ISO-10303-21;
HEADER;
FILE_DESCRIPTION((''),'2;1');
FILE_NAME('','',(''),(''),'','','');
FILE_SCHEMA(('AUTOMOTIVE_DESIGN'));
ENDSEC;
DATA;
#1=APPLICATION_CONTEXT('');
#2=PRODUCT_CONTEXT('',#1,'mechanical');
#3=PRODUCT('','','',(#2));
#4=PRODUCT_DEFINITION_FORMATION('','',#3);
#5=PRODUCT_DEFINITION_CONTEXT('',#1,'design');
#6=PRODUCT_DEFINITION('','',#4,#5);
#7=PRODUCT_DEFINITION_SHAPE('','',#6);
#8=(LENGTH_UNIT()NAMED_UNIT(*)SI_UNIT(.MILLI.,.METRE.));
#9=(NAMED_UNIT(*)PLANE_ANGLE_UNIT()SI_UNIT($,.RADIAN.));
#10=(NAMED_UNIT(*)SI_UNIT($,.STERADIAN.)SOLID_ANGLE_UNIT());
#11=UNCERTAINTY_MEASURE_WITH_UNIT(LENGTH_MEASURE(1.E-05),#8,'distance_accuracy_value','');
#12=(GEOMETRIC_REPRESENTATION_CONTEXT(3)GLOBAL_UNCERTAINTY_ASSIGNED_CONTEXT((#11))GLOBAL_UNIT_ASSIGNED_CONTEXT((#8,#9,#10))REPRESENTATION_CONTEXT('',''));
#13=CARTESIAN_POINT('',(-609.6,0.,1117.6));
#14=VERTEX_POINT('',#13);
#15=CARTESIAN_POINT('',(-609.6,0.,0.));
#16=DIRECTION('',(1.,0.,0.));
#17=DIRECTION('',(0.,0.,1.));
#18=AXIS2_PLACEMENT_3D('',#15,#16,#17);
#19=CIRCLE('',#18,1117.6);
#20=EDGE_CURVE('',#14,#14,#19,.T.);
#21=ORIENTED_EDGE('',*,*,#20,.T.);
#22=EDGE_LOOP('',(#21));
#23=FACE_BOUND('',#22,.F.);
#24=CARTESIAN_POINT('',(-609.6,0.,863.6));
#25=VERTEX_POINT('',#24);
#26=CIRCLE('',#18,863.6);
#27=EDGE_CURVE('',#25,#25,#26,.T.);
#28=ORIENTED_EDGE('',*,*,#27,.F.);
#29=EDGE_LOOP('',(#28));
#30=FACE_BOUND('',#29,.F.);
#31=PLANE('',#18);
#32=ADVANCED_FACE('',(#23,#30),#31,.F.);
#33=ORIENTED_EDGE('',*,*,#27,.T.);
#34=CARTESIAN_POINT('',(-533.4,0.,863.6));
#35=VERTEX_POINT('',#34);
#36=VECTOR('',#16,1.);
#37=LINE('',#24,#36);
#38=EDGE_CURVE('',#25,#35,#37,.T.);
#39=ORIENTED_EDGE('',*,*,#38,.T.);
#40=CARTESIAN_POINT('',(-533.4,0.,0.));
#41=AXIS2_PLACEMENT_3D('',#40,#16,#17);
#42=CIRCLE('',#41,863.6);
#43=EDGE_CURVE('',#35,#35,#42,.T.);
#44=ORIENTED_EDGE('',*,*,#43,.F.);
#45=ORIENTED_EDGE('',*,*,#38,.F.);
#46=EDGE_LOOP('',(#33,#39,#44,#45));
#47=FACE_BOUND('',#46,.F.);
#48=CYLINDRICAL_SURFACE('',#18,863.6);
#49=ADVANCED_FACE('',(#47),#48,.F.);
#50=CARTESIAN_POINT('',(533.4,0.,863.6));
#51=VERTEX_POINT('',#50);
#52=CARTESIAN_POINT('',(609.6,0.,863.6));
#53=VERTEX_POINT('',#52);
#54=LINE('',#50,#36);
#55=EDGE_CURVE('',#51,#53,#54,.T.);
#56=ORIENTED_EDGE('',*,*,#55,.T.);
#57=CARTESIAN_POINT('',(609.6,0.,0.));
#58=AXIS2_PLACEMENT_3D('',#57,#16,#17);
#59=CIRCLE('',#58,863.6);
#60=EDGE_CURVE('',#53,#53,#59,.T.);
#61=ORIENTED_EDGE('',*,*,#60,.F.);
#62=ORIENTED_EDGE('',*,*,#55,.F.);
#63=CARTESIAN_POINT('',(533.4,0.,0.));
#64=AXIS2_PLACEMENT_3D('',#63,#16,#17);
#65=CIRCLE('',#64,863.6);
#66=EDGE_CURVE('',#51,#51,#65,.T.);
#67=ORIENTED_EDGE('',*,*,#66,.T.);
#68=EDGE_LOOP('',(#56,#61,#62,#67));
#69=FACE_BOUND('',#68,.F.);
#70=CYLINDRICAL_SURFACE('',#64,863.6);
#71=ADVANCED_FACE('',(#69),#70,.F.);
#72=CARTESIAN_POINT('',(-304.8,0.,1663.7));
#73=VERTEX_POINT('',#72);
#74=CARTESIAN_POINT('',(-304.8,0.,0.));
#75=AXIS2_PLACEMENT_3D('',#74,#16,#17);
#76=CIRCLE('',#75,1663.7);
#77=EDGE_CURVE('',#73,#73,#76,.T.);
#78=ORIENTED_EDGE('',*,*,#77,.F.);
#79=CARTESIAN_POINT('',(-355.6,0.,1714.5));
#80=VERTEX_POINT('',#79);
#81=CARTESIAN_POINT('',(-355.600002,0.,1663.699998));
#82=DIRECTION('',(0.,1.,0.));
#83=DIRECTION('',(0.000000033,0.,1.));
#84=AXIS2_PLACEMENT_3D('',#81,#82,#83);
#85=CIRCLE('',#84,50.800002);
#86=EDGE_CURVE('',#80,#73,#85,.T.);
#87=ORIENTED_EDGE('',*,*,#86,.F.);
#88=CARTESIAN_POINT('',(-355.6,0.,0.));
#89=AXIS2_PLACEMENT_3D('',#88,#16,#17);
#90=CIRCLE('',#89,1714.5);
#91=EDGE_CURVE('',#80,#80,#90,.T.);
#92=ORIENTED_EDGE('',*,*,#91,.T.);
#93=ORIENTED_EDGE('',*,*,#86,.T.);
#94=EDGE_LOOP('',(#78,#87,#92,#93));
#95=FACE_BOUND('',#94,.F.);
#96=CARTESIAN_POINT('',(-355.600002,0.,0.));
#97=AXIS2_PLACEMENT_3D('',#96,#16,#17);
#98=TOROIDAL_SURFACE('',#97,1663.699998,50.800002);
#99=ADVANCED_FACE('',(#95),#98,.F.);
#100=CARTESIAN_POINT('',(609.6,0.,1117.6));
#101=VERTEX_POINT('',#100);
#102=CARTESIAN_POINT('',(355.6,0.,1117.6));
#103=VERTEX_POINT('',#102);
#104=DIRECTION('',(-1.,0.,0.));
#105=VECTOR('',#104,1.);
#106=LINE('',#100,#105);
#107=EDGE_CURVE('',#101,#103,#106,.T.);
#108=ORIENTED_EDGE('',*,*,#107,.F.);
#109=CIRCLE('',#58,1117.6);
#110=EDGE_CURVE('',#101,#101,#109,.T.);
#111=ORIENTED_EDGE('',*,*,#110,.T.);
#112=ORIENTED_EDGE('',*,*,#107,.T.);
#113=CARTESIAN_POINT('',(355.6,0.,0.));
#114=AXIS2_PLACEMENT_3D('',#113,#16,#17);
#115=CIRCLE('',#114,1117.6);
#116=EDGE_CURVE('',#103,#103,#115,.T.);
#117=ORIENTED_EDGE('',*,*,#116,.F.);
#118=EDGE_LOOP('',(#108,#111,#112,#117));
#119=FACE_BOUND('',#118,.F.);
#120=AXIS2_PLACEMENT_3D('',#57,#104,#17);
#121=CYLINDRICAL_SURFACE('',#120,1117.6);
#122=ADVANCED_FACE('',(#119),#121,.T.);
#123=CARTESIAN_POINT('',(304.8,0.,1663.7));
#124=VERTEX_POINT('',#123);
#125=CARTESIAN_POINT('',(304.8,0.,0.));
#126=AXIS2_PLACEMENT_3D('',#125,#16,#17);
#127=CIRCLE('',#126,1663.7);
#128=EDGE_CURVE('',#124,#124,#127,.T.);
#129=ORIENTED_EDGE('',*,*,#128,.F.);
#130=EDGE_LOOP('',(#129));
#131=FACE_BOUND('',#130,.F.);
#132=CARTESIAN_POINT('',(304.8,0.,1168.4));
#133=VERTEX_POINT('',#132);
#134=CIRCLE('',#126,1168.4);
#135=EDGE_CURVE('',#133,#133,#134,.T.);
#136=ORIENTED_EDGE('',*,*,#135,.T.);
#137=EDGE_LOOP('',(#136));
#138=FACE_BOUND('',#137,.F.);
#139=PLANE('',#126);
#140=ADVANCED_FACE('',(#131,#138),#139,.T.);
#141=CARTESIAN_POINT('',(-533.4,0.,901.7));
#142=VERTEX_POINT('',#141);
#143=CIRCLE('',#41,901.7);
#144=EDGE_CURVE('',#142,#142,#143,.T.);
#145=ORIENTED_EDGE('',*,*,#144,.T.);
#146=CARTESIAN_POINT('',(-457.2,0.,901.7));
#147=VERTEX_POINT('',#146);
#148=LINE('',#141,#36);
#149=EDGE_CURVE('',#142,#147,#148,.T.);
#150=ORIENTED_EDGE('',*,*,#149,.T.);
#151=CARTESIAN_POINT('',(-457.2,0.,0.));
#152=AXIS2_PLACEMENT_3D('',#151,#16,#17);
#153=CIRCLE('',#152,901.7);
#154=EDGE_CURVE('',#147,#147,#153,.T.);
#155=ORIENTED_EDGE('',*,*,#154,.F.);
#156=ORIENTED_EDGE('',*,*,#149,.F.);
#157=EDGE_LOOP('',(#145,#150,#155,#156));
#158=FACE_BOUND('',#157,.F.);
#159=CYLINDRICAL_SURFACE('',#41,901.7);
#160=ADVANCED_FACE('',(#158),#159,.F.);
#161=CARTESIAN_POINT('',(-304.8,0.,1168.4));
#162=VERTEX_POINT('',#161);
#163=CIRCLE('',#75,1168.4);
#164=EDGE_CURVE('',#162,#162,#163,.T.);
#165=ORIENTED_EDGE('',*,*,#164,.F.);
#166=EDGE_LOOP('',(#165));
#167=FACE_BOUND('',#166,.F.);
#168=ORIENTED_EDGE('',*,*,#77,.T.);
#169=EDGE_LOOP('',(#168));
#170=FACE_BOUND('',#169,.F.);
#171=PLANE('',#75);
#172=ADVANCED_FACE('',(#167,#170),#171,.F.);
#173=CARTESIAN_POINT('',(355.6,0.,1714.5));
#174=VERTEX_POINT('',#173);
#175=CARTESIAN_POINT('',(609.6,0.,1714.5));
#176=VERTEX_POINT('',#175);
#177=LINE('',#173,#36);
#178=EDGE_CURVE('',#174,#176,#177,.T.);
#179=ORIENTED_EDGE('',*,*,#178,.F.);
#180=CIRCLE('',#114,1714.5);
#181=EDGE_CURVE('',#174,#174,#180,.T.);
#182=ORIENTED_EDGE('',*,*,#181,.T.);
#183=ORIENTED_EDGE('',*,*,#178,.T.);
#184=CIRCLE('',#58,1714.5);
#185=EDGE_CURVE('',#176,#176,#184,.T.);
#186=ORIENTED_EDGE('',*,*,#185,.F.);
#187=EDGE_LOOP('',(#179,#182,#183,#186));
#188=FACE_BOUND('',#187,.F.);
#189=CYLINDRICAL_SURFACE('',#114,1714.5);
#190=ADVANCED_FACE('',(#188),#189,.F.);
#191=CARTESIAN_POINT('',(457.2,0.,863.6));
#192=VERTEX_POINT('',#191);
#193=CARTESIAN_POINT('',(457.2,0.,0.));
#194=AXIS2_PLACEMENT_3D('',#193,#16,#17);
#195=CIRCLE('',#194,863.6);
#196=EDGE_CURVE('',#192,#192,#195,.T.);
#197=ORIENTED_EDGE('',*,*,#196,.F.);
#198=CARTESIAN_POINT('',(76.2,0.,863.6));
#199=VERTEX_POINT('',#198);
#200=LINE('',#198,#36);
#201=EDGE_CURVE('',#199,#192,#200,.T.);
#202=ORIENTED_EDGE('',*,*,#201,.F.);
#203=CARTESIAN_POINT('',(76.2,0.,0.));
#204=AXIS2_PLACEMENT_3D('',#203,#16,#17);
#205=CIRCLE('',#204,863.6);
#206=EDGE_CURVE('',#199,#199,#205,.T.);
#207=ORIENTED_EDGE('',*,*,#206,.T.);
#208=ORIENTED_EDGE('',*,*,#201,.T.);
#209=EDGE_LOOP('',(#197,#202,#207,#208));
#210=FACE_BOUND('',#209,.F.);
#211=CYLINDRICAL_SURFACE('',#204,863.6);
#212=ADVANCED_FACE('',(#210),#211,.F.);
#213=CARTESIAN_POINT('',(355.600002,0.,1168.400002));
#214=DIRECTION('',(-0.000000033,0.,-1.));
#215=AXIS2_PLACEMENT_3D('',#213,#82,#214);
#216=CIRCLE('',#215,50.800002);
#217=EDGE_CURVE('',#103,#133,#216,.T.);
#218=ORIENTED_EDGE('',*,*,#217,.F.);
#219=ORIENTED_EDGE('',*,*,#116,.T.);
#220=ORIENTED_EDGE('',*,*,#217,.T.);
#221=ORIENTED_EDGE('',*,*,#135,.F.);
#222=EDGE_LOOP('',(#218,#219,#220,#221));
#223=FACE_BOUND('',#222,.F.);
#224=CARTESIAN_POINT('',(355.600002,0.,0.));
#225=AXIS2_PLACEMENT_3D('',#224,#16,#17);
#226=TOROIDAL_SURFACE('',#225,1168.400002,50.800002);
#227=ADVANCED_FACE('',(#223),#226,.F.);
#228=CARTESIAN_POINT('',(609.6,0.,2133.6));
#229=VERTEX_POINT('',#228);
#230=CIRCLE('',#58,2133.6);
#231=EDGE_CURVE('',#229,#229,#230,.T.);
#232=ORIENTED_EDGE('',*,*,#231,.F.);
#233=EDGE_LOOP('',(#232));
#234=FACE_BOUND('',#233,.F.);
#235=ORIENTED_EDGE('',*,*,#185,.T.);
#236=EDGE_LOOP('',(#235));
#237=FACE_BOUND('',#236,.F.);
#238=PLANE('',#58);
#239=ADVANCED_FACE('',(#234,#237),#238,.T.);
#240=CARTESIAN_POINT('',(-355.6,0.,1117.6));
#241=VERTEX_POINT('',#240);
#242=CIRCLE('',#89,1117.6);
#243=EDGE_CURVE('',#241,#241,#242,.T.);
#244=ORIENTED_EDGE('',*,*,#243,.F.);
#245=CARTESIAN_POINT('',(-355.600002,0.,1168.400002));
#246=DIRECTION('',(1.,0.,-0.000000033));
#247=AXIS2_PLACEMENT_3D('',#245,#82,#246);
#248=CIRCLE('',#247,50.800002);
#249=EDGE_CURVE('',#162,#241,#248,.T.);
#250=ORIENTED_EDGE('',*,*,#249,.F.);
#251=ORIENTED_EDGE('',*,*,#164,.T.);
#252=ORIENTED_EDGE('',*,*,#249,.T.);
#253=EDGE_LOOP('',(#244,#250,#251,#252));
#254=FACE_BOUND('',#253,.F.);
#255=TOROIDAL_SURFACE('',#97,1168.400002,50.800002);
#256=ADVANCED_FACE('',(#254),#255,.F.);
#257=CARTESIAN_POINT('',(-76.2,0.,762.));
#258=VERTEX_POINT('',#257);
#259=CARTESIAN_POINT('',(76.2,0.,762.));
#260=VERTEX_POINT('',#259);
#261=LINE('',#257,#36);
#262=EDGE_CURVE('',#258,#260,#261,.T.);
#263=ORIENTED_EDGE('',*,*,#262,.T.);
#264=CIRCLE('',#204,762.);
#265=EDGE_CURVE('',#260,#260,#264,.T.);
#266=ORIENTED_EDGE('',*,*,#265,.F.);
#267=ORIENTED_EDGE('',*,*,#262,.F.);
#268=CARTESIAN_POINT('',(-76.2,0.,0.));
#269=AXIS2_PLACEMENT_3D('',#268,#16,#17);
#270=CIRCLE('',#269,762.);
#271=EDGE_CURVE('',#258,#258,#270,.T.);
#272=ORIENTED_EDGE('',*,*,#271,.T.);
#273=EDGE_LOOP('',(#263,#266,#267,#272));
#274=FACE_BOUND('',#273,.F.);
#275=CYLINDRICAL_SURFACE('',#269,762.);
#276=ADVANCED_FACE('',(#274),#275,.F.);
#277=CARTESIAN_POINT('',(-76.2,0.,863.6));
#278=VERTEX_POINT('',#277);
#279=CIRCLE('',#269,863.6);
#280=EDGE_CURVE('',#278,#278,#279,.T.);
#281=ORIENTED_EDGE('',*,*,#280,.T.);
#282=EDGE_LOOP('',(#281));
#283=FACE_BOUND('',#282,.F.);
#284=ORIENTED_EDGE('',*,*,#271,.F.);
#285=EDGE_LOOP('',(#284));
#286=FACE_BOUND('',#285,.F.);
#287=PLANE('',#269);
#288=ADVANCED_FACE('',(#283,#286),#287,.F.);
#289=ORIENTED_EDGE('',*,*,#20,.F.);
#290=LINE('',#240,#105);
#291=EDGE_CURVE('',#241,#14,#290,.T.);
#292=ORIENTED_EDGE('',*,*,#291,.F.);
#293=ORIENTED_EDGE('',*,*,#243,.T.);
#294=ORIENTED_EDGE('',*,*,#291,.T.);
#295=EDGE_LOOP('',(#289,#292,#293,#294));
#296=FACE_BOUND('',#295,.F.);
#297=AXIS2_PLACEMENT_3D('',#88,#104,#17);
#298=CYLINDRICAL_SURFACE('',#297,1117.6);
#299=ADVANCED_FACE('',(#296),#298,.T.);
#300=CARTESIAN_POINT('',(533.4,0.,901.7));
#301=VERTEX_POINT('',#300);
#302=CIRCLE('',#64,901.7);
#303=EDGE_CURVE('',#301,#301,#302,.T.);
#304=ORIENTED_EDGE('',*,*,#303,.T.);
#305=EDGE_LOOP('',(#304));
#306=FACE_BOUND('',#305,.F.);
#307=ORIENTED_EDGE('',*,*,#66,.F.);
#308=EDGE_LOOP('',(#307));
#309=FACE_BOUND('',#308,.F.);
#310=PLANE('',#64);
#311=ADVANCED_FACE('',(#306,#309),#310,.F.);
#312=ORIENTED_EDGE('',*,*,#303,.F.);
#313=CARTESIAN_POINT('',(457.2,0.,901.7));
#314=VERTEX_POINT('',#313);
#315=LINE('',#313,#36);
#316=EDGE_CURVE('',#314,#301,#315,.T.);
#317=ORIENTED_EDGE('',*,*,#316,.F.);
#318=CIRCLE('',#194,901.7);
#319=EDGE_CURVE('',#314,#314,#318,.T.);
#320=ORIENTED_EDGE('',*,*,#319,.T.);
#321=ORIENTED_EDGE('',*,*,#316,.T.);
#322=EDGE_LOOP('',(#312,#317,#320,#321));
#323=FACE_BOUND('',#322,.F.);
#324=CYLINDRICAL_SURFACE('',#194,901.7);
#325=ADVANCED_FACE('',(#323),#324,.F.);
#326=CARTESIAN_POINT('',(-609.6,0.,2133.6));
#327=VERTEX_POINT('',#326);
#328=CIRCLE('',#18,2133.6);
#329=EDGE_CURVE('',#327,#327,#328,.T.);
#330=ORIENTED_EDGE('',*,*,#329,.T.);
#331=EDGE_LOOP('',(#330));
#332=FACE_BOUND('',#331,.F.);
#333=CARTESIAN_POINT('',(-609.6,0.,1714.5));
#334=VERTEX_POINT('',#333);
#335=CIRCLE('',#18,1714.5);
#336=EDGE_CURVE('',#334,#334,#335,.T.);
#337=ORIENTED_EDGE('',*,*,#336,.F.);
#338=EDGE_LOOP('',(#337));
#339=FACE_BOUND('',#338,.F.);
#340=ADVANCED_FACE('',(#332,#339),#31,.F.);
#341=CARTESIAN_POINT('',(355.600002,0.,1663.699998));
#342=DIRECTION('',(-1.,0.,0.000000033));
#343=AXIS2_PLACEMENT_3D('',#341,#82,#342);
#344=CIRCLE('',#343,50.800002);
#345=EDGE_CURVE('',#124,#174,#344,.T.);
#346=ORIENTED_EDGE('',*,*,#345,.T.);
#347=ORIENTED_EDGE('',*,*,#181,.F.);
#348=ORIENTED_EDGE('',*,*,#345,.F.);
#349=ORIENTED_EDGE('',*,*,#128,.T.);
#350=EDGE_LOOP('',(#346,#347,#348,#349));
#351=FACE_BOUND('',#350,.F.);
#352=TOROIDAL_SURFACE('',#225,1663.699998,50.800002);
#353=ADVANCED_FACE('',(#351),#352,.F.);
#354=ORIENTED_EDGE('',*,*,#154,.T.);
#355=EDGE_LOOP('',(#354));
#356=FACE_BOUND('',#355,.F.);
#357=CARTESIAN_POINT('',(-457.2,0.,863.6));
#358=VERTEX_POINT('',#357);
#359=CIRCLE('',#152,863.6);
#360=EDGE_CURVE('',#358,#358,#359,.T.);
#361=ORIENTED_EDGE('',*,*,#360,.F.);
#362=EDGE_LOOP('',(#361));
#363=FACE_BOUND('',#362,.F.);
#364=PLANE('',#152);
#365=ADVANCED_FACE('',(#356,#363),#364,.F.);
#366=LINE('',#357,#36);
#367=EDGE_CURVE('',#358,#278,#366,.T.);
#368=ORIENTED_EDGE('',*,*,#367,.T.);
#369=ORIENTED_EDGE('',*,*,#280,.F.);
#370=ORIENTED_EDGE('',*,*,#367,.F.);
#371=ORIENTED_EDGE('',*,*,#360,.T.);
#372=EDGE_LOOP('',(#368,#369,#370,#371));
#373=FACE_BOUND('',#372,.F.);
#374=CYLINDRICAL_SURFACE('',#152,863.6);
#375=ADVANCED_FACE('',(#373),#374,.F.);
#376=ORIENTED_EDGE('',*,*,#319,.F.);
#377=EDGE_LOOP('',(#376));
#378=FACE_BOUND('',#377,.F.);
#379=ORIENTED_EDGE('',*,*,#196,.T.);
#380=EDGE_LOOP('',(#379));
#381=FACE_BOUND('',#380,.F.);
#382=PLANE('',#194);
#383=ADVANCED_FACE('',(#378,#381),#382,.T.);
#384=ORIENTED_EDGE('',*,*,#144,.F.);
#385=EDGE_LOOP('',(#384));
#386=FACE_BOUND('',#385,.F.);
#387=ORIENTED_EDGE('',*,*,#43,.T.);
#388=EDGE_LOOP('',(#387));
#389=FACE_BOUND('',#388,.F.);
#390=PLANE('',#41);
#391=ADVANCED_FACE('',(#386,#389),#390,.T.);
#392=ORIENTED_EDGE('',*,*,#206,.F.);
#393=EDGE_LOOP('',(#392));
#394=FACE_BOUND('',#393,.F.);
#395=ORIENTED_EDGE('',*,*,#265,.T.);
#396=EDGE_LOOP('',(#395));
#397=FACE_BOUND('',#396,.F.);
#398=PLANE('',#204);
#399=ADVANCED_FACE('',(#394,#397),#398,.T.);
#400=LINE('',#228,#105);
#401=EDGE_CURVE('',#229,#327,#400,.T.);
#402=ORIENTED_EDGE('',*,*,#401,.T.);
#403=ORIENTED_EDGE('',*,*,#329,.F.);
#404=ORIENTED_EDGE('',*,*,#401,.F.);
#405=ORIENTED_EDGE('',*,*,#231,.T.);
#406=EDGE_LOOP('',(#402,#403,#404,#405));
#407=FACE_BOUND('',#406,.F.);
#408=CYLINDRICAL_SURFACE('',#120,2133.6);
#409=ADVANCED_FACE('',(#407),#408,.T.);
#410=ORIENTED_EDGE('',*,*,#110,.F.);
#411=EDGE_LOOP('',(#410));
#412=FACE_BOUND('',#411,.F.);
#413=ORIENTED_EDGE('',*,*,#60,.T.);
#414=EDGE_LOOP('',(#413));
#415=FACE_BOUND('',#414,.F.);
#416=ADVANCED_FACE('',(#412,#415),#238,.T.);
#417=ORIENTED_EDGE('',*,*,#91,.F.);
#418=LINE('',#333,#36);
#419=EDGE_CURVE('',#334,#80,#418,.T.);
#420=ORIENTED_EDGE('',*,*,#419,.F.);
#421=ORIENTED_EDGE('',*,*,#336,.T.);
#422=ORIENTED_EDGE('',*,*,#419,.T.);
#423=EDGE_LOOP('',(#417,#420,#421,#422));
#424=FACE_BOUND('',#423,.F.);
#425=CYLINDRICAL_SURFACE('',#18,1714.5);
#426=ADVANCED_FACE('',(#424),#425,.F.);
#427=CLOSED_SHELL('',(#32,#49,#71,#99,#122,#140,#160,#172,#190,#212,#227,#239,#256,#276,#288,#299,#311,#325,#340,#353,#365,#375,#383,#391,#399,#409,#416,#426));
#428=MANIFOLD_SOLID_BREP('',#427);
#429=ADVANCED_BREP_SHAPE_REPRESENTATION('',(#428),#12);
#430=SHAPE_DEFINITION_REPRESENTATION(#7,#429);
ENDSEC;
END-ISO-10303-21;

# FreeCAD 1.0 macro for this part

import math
import FreeCAD as App
import Part
import Sketcher
Q = App.Units.Quantity

doc = App.newDocument("Part")
body = doc.addObject("PartDesign::Body", "Body")

sketch1 = doc.addObject("Sketcher::SketchObject", "Sketch")
body.addObject(sketch1)
sketch1.AttachmentSupport = (doc.XZ_Plane, [""])
sketch1.MapMode = "FlatFace"
sketch1.addGeometry([
    Part.LineSegment(App.Vector(610, 2134, 0), App.Vector(-610, 2134, 0)),
    Part.LineSegment(App.Vector(-610, 2134, 0), App.Vector(-610, 1714, 0)),
    Part.LineSegment(App.Vector(-610, 1714, 0), App.Vector(-356, 1714, 0)),
    Part.ArcOfCircle(Part.Circle(App.Vector(-356, 1664, 0), App.Vector(0, 0, 1), 51), math.radians(0), math.radians(90)),
    Part.LineSegment(App.Vector(-305, 1664, 0), App.Vector(-305, 1168, 0)),
    Part.ArcOfCircle(Part.Circle(App.Vector(-356, 1168, 0), App.Vector(0, 0, 1), 51), math.radians(-90), math.radians(0)),
    Part.LineSegment(App.Vector(-356, 1118, 0), App.Vector(-610, 1118, 0)),
    Part.LineSegment(App.Vector(-610, 1118, 0), App.Vector(-610, 864, 0)),
    Part.LineSegment(App.Vector(-610, 864, 0), App.Vector(-533, 864, 0)),
    Part.LineSegment(App.Vector(-533, 864, 0), App.Vector(-533, 902, 0)),
    Part.LineSegment(App.Vector(-533, 902, 0), App.Vector(-457, 902, 0)),
    Part.LineSegment(App.Vector(-457, 902, 0), App.Vector(-457, 864, 0)),
    Part.LineSegment(App.Vector(-457, 864, 0), App.Vector(-76, 864, 0)),
    Part.LineSegment(App.Vector(-76, 864, 0), App.Vector(-76, 762, 0)),
    Part.LineSegment(App.Vector(-76, 762, 0), App.Vector(76, 762, 0)),
    Part.LineSegment(App.Vector(76, 762, 0), App.Vector(76, 864, 0)),
    Part.LineSegment(App.Vector(76, 864, 0), App.Vector(457, 864, 0)),
    Part.LineSegment(App.Vector(457, 864, 0), App.Vector(457, 902, 0)),
    Part.LineSegment(App.Vector(457, 902, 0), App.Vector(533, 902, 0)),
    Part.LineSegment(App.Vector(533, 902, 0), App.Vector(533, 864, 0)),
    Part.LineSegment(App.Vector(533, 864, 0), App.Vector(610, 864, 0)),
    Part.LineSegment(App.Vector(610, 864, 0), App.Vector(610, 1118, 0)),
    Part.LineSegment(App.Vector(610, 1118, 0), App.Vector(356, 1118, 0)),
    Part.ArcOfCircle(Part.Circle(App.Vector(356, 1168, 0), App.Vector(0, 0, 1), 51), math.radians(-180), math.radians(-90)),
    Part.LineSegment(App.Vector(305, 1168, 0), App.Vector(305, 1664, 0)),
    Part.ArcOfCircle(Part.Circle(App.Vector(356, 1664, 0), App.Vector(0, 0, 1), 51), math.radians(90), math.radians(180)),
    Part.LineSegment(App.Vector(356, 1714, 0), App.Vector(610, 1714, 0)),
    Part.LineSegment(App.Vector(610, 1714, 0), App.Vector(610, 2134, 0)),
], False)
sketch1.addConstraint([
    Sketcher.Constraint("Coincident", 0, 2, 1, 1),
    Sketcher.Constraint("Coincident", 1, 2, 2, 1),
    Sketcher.Constraint("Tangent", 2, 2, 3, 2),
    Sketcher.Constraint("Tangent", 3, 1, 4, 1),
    Sketcher.Constraint("Tangent", 4, 2, 5, 2),
    Sketcher.Constraint("Tangent", 5, 1, 6, 1),
    Sketcher.Constraint("Coincident", 6, 2, 7, 1),
    Sketcher.Constraint("Coincident", 7, 2, 8, 1),
    Sketcher.Constraint("Coincident", 8, 2, 9, 1),
    Sketcher.Constraint("Coincident", 9, 2, 10, 1),
    Sketcher.Constraint("Coincident", 10, 2, 11, 1),
    Sketcher.Constraint("Coincident", 11, 2, 12, 1),
    Sketcher.Constraint("Coincident", 12, 2, 13, 1),
    Sketcher.Constraint("Coincident", 13, 2, 14, 1),
    Sketcher.Constraint("Coincident", 14, 2, 15, 1),
    Sketcher.Constraint("Coincident", 15, 2, 16, 1),
    Sketcher.Constraint("Coincident", 16, 2, 17, 1),
    Sketcher.Constraint("Coincident", 17, 2, 18, 1),
    Sketcher.Constraint("Coincident", 18, 2, 19, 1),
    Sketcher.Constraint("Coincident", 19, 2, 20, 1),
    Sketcher.Constraint("Coincident", 20, 2, 21, 1),
    Sketcher.Constraint("Coincident", 21, 2, 22, 1),
    Sketcher.Constraint("Tangent", 22, 2, 23, 2),
    Sketcher.Constraint("Tangent", 23, 1, 24, 1),
    Sketcher.Constraint("Tangent", 24, 2, 25, 2),
    Sketcher.Constraint("Tangent", 25, 1, 26, 1),
    Sketcher.Constraint("Coincident", 26, 2, 27, 1),
    Sketcher.Constraint("Coincident", 27, 2, 0, 1),
    Sketcher.Constraint("Horizontal", 0),
    Sketcher.Constraint("Vertical", 1),
    Sketcher.Constraint("Horizontal", 2),
    Sketcher.Constraint("Vertical", 4),
    Sketcher.Constraint("Horizontal", 6),
    Sketcher.Constraint("Vertical", 7),
    Sketcher.Constraint("Horizontal", 8),
    Sketcher.Constraint("Vertical", 9),
    Sketcher.Constraint("Horizontal", 10),
    Sketcher.Constraint("Vertical", 11),
    Sketcher.Constraint("Horizontal", 12),
    Sketcher.Constraint("Vertical", 13),
    Sketcher.Constraint("Horizontal", 14),
    Sketcher.Constraint("Vertical", 15),
    Sketcher.Constraint("Horizontal", 16),
    Sketcher.Constraint("Vertical", 17),
    Sketcher.Constraint("Horizontal", 18),
    Sketcher.Constraint("Vertical", 19),
    Sketcher.Constraint("Horizontal", 20),
    Sketcher.Constraint("Vertical", 21),
    Sketcher.Constraint("Horizontal", 22),
    Sketcher.Constraint("Vertical", 24),
    Sketcher.Constraint("Horizontal", 26),
    Sketcher.Constraint("Vertical", 27),
    Sketcher.Constraint("Equal", 3, 5),
    Sketcher.Constraint("Equal", 5, 23),
    Sketcher.Constraint("Equal", 23, 25),
    Sketcher.Constraint("Symmetric", 5, 3, 23, 3, -2),
    Sketcher.Constraint("Symmetric", 12, 2, 15, 2, -2),
    Sketcher.Constraint("Symmetric", 10, 2, 17, 2, -2),
    Sketcher.Constraint("Symmetric", 8, 2, 19, 2, -2),
    Sketcher.Constraint("Symmetric", 1, 2, 26, 2, -2),
    Sketcher.Constraint("Horizontal", 8, 2, 11, 2),
    Sketcher.Constraint("Vertical", 1, 2, 6, 2),
    Sketcher.Constraint("Vertical", 21, 2, 26, 2),
    Sketcher.Constraint("Equal", 8, 10),
    Sketcher.Constraint("Equal", 26, 7),
    Sketcher.Constraint("Radius", 3, Q("2.0000001 in")),
    Sketcher.Constraint("DistanceX", 0, 2, 0, 1, Q("48 in")),
    Sketcher.Constraint("DistanceX", 2, 1, 2, 2, Q("10 in")),
    Sketcher.Constraint("DistanceX", 8, 1, 8, 2, Q("3 in")),
    Sketcher.Constraint("DistanceX", 12, 1, 12, 2, Q("15 in")),
    Sketcher.Constraint("DistanceY", 13, 2, 13, 1, Q("4 in")),
    Sketcher.Constraint("DistanceY", 1, 2, 1, 1, Q("16.5 in")),
    Sketcher.Constraint("DistanceY", 4, 2, 4, 1, Q("19.5 in")),
    Sketcher.Constraint("DistanceY", 9, 1, 9, 2, Q("1.5 in")),
    Sketcher.Constraint("DistanceY", -1, 1, 5, 3, Q("46.0000001 in")),
])
revolution = doc.addObject("PartDesign::Revolution", "Revolution")
body.addObject(revolution)
revolution.Profile = sketch1
revolution.ReferenceAxis = (sketch1, ["H_Axis"])
revolution.Angle = 360

doc.recompute()
